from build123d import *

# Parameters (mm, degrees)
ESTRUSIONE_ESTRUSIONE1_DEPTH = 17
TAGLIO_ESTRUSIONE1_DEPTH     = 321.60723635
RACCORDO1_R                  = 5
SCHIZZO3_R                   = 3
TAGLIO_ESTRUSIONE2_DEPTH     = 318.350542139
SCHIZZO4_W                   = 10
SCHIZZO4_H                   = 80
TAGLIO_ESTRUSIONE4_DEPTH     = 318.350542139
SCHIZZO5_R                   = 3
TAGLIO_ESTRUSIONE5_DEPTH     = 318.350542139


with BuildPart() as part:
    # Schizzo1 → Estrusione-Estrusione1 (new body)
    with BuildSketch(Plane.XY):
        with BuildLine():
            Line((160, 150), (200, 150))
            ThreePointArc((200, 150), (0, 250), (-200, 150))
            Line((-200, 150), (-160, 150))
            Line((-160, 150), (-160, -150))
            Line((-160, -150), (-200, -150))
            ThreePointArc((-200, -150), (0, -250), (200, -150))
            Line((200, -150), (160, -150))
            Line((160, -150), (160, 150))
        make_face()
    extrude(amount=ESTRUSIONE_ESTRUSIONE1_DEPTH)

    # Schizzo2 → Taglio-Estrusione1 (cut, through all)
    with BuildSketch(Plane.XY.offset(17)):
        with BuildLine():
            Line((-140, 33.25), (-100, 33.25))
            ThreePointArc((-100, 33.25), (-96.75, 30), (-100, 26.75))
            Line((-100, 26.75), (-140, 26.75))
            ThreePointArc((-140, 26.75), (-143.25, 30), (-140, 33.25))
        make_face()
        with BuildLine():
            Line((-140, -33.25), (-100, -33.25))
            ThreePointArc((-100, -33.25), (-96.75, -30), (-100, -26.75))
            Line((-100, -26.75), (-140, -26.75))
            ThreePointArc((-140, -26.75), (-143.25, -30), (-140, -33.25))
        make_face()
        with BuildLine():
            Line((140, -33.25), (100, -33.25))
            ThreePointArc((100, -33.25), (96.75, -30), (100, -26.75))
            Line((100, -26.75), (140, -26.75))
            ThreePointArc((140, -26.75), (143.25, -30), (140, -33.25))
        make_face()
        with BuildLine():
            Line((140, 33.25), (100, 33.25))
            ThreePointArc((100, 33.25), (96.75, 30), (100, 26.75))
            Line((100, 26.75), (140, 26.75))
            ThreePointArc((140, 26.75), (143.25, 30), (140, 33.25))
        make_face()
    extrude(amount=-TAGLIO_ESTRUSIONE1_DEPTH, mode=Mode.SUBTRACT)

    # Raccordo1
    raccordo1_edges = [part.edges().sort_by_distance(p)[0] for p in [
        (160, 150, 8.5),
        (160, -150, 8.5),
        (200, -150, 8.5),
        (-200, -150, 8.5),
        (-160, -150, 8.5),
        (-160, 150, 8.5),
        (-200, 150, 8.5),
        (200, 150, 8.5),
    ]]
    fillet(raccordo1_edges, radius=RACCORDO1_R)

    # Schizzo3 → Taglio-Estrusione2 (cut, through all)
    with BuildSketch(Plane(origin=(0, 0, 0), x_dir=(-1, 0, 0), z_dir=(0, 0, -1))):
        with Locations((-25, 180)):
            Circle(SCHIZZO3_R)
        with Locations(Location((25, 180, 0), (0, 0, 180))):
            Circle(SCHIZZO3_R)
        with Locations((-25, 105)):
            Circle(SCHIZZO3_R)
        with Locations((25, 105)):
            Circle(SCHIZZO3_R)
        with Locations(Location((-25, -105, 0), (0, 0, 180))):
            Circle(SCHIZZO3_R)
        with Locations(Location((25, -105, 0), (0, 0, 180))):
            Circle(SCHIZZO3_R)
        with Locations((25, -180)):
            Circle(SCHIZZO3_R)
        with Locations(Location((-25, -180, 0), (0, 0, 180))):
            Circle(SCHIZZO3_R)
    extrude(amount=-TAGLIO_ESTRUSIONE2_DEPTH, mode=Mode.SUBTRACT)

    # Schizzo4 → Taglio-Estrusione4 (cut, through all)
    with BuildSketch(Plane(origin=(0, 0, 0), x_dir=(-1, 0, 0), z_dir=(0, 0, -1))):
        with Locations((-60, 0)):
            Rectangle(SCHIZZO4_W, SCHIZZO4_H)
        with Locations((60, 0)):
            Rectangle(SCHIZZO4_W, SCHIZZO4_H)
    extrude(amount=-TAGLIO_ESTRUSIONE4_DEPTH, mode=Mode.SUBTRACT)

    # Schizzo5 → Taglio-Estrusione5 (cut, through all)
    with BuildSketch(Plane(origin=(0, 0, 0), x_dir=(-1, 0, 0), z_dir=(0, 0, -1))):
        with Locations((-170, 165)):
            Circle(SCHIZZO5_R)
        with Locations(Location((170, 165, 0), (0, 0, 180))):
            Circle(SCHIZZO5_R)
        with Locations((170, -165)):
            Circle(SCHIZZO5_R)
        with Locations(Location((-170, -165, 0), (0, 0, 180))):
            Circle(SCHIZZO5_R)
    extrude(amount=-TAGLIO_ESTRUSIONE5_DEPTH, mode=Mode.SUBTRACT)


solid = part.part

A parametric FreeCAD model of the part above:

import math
import FreeCAD as App
import Part
import Sketcher


def edges_at(feature, points):
    """Names of the edges that pass closest to the given points."""
    edges = feature.Shape.Edges
    near = lambda p: min(range(len(edges)), key=lambda i: edges[i].distToShape(Part.Vertex(*p))[0])
    return sorted({f"Edge{near(p) + 1}" for p in points})


def add_polygon(sketch, points):
    """Adds a closed chain of lines whose ends are joined by coincident constraints."""
    first, n = sketch.GeometryCount, len(points)
    for a, b in zip(points, points[1:] + points[:1]):
        sketch.addGeometry(Part.LineSegment(App.Vector(*a, 0), App.Vector(*b, 0)), False)
    for i in range(n):
        sketch.addConstraint(Sketcher.Constraint("Coincident", first + i, 2, first + (i + 1) % n, 1))

doc = App.newDocument("Part")
body = doc.addObject("PartDesign::Body", "Body")

sketch1 = body.newObject("Sketcher::SketchObject", "Sketch")
sketch1.AttachmentSupport = (doc.getObject("XY_Plane"), [""])
sketch1.MapMode = "FlatFace"
sketch1.addGeometry([
    Part.LineSegment(App.Vector(160, 150, 0), App.Vector(200, 150, 0)),
    Part.ArcOfCircle(Part.Circle(App.Vector(0, 0, 0), App.Vector(0, 0, 1), 250), math.radians(37), math.radians(143)),
    Part.LineSegment(App.Vector(-200, 150, 0), App.Vector(-160, 150, 0)),
    Part.LineSegment(App.Vector(-160, 150, 0), App.Vector(-160, -150, 0)),
    Part.LineSegment(App.Vector(-160, -150, 0), App.Vector(-200, -150, 0)),
    Part.ArcOfCircle(Part.Circle(App.Vector(0, 0, 0), App.Vector(0, 0, 1), 250), math.radians(-143), math.radians(-37)),
    Part.LineSegment(App.Vector(200, -150, 0), App.Vector(160, -150, 0)),
    Part.LineSegment(App.Vector(160, -150, 0), App.Vector(160, 150, 0)),
], False)
sketch1.addConstraint([
    Sketcher.Constraint("Coincident", 0, 2, 1, 1),
    Sketcher.Constraint("Coincident", 1, 2, 2, 1),
    Sketcher.Constraint("Coincident", 2, 2, 3, 1),
    Sketcher.Constraint("Coincident", 3, 2, 4, 1),
    Sketcher.Constraint("Coincident", 4, 2, 5, 1),
    Sketcher.Constraint("Coincident", 5, 2, 6, 1),
    Sketcher.Constraint("Coincident", 6, 2, 7, 1),
    Sketcher.Constraint("Coincident", 7, 2, 0, 1),
    Sketcher.Constraint("Horizontal", 0),
    Sketcher.Constraint("Horizontal", 2),
    Sketcher.Constraint("Vertical", 3),
    Sketcher.Constraint("Horizontal", 4),
    Sketcher.Constraint("Horizontal", 6),
    Sketcher.Constraint("Vertical", 7),
    Sketcher.Constraint("Coincident", 1, 3, -1, 1),
    Sketcher.Constraint("Coincident", 5, 3, -1, 1),
    Sketcher.Constraint("Equal", 1, 5),
    Sketcher.Constraint("Symmetric", 2, 2, 6, 2, -1, 1),
    Sketcher.Constraint("Horizontal", 0, 2, 1, 2),
    Sketcher.Constraint("Horizontal", 4, 2, 5, 2),
    Sketcher.Constraint("Radius", 1, 250.0),
    Sketcher.Constraint("DistanceX", 0, 1, 0, 2, 40.0),
    Sketcher.Constraint("DistanceY", 3, 2, 3, 1, 300.0),
])
pad1 = body.newObject("PartDesign::Pad", "Pad")
pad1.Profile = sketch1
pad1.Length = 17

sketch2 = body.newObject("Sketcher::SketchObject", "Sketch001")
sketch2.AttachmentSupport = (doc.getObject("XY_Plane"), [""])
sketch2.MapMode = "FlatFace"
sketch2.AttachmentOffset = App.Placement(App.Vector(0, 0, 17), App.Rotation())
sketch2.addGeometry([
    Part.LineSegment(App.Vector(-100, 33.2, 0), App.Vector(-140, 33.2, 0)),
    Part.ArcOfCircle(Part.Circle(App.Vector(-140, 30, 0), App.Vector(0, 0, 1), 3.2), math.radians(90), math.radians(270)),
    Part.LineSegment(App.Vector(-140, 26.8, 0), App.Vector(-100, 26.8, 0)),
    Part.ArcOfCircle(Part.Circle(App.Vector(-100, 30, 0), App.Vector(0, 0, 1), 3.2), math.radians(-90), math.radians(90)),
    Part.LineSegment(App.Vector(-140, -33.2, 0), App.Vector(-100, -33.2, 0)),
    Part.ArcOfCircle(Part.Circle(App.Vector(-100, -30, 0), App.Vector(0, 0, 1), 3.2), math.radians(-90), math.radians(90)),
    Part.LineSegment(App.Vector(-100, -26.8, 0), App.Vector(-140, -26.8, 0)),
    Part.ArcOfCircle(Part.Circle(App.Vector(-140, -30, 0), App.Vector(0, 0, 1), 3.2), math.radians(90), math.radians(270)),
    Part.LineSegment(App.Vector(100, -33.2, 0), App.Vector(140, -33.2, 0)),
    Part.ArcOfCircle(Part.Circle(App.Vector(140, -30, 0), App.Vector(0, 0, 1), 3.2), math.radians(-90), math.radians(90)),
    Part.LineSegment(App.Vector(140, -26.8, 0), App.Vector(100, -26.8, 0)),
    Part.ArcOfCircle(Part.Circle(App.Vector(100, -30, 0), App.Vector(0, 0, 1), 3.2), math.radians(90), math.radians(270)),
    Part.LineSegment(App.Vector(140, 33.2, 0), App.Vector(100, 33.2, 0)),
    Part.ArcOfCircle(Part.Circle(App.Vector(100, 30, 0), App.Vector(0, 0, 1), 3.2), math.radians(90), math.radians(270)),
    Part.LineSegment(App.Vector(100, 26.8, 0), App.Vector(140, 26.8, 0)),
    Part.ArcOfCircle(Part.Circle(App.Vector(140, 30, 0), App.Vector(0, 0, 1), 3.2), math.radians(-90), math.radians(90)),
], False)
sketch2.addConstraint([
    Sketcher.Constraint("Tangent", 0, 2, 1, 1),
    Sketcher.Constraint("Tangent", 1, 2, 2, 1),
    Sketcher.Constraint("Tangent", 2, 2, 3, 1),
    Sketcher.Constraint("Tangent", 3, 2, 0, 1),
    Sketcher.Constraint("Tangent", 4, 2, 5, 1),
    Sketcher.Constraint("Tangent", 5, 2, 6, 1),
    Sketcher.Constraint("Tangent", 6, 2, 7, 1),
    Sketcher.Constraint("Tangent", 7, 2, 4, 1),
    Sketcher.Constraint("Tangent", 8, 2, 9, 1),
    Sketcher.Constraint("Tangent", 9, 2, 10, 1),
    Sketcher.Constraint("Tangent", 10, 2, 11, 1),
    Sketcher.Constraint("Tangent", 11, 2, 8, 1),
    Sketcher.Constraint("Tangent", 12, 2, 13, 1),
    Sketcher.Constraint("Tangent", 13, 2, 14, 1),
    Sketcher.Constraint("Tangent", 14, 2, 15, 1),
    Sketcher.Constraint("Tangent", 15, 2, 12, 1),
    Sketcher.Constraint("Horizontal", 0),
    Sketcher.Constraint("Horizontal", 2),
    Sketcher.Constraint("Horizontal", 4),
    Sketcher.Constraint("Horizontal", 6),
    Sketcher.Constraint("Horizontal", 8),
    Sketcher.Constraint("Horizontal", 10),
    Sketcher.Constraint("Horizontal", 12),
    Sketcher.Constraint("Horizontal", 14),
    Sketcher.Constraint("Equal", 3, 5),
    Sketcher.Constraint("Equal", 7, 9),
    Sketcher.Constraint("Equal", 11, 13),
    Sketcher.Constraint("Symmetric", 1, 3, 9, 3, -1, 1),
    Sketcher.Constraint("Symmetric", 5, 3, 13, 3, -1, 1),
    Sketcher.Constraint("Symmetric", 7, 3, 9, 3, -2),
    Sketcher.Constraint("Vertical", 3, 3, 5, 3),
    Sketcher.Constraint("Vertical", 11, 3, 13, 3),
    Sketcher.Constraint("Vertical", 9, 3, 15, 3),
    Sketcher.Constraint("DistanceX", 0, 2, 0, 1, 40.0),
    Sketcher.Constraint("Radius", 1, 3.25),
    Sketcher.Constraint("DistanceX", 1, 3, -1, 1, 140.0),
    Sketcher.Constraint("DistanceY", -1, 1, 1, 3, 30.0),
])
pocket1 = body.newObject("PartDesign::Pocket", "Pocket")
pocket1.Profile = sketch2
pocket1.Type = "ThroughAll"
doc.recompute()

fillet = body.newObject("PartDesign::Fillet", "Fillet")
fillet.Base = (pocket1, edges_at(pocket1, [
    (160, 150, 8.5),
    (160, -150, 8.5),
    (200, -150, 8.5),
    (-200, -150, 8.5),
    (-160, -150, 8.5),
    (-160, 150, 8.5),
    (-200, 150, 8.5),
    (200, 150, 8.5),
]))
fillet.Radius = 5

sketch3 = body.newObject("Sketcher::SketchObject", "Sketch002")
sketch3.AttachmentSupport = (doc.getObject("XY_Plane"), [""])
sketch3.MapMode = "FlatFace"
sketch3.addGeometry([
    Part.Circle(App.Vector(25, 180, 0), App.Vector(0, 0, 1), 3),
    Part.Circle(App.Vector(-25, 180, 0), App.Vector(0, 0, 1), 3),
    Part.Circle(App.Vector(25, 105, 0), App.Vector(0, 0, 1), 3),
    Part.Circle(App.Vector(-25, 105, 0), App.Vector(0, 0, 1), 3),
    Part.Circle(App.Vector(25, -105, 0), App.Vector(0, 0, 1), 3),
    Part.Circle(App.Vector(-25, -105, 0), App.Vector(0, 0, 1), 3),
    Part.Circle(App.Vector(-25, -180, 0), App.Vector(0, 0, 1), 3),
    Part.Circle(App.Vector(25, -180, 0), App.Vector(0, 0, 1), 3),
], False)
sketch3.addConstraint([
    Sketcher.Constraint("Equal", 0, 1),
    Sketcher.Constraint("Equal", 1, 2),
    Sketcher.Constraint("Equal", 2, 3),
    Sketcher.Constraint("Equal", 3, 4),
    Sketcher.Constraint("Equal", 4, 5),
    Sketcher.Constraint("Equal", 5, 6),
    Sketcher.Constraint("Equal", 6, 7),
    Sketcher.Constraint("Symmetric", 3, 3, 4, 3, -1, 1),
    Sketcher.Constraint("Symmetric", 2, 3, 5, 3, -1, 1),
    Sketcher.Constraint("Symmetric", 0, 3, 6, 3, -1, 1),
    Sketcher.Constraint("Symmetric", 1, 3, 7, 3, -1, 1),
    Sketcher.Constraint("Symmetric", 0, 3, 1, 3, -2),
    Sketcher.Constraint("Symmetric", 2, 3, 3, 3, -2),
    Sketcher.Constraint("Vertical", 0, 3, 2, 3),
    Sketcher.Constraint("Diameter", 0, 6.0),
    Sketcher.Constraint("DistanceX", -1, 1, 0, 3, 25.0),
    Sketcher.Constraint("DistanceY", -1, 1, 0, 3, 180.0),
    Sketcher.Constraint("DistanceY", -1, 1, 2, 3, 105.0),
])
pocket2 = body.newObject("PartDesign::Pocket", "Pocket001")
pocket2.Profile = sketch3
pocket2.Type = "ThroughAll"
pocket2.Reversed = True

sketch4 = body.newObject("Sketcher::SketchObject", "Sketch003")
sketch4.AttachmentSupport = (doc.getObject("XY_Plane"), [""])
sketch4.MapMode = "FlatFace"
add_polygon(sketch4, [(65, 40), (65, -40), (55, -40), (55, 40)])
add_polygon(sketch4, [(-55, 40), (-55, -40), (-65, -40), (-65, 40)])
sketch4.addConstraint([
    Sketcher.Constraint("Vertical", 0),
    Sketcher.Constraint("Horizontal", 1),
    Sketcher.Constraint("Vertical", 2),
    Sketcher.Constraint("Horizontal", 3),
    Sketcher.Constraint("Vertical", 4),
    Sketcher.Constraint("Horizontal", 5),
    Sketcher.Constraint("Vertical", 6),
    Sketcher.Constraint("Horizontal", 7),
    Sketcher.Constraint("Symmetric", 2, 2, 4, 2, -1, 1),
    Sketcher.Constraint("Symmetric", 0, 2, 6, 2, -1, 1),
    Sketcher.Constraint("Horizontal", 1, 2, 4, 2),
    Sketcher.Constraint("DistanceX", 1, 2, 1, 1, 10.0),
    Sketcher.Constraint("DistanceY", 0, 2, 0, 1, 80.0),
    Sketcher.Constraint("DistanceX", -1, 1, 0, 2, 65.0),
])
pocket3 = body.newObject("PartDesign::Pocket", "Pocket002")
pocket3.Profile = sketch4
pocket3.Type = "ThroughAll"
pocket3.Reversed = True

sketch5 = body.newObject("Sketcher::SketchObject", "Sketch004")
sketch5.AttachmentSupport = (doc.getObject("XY_Plane"), [""])
sketch5.MapMode = "FlatFace"
sketch5.addGeometry([
    Part.Circle(App.Vector(170, 165, 0), App.Vector(0, 0, 1), 3),
    Part.Circle(App.Vector(-170, 165, 0), App.Vector(0, 0, 1), 3),
    Part.Circle(App.Vector(-170, -165, 0), App.Vector(0, 0, 1), 3),
    Part.Circle(App.Vector(170, -165, 0), App.Vector(0, 0, 1), 3),
], False)
sketch5.addConstraint([
    Sketcher.Constraint("Equal", 0, 1),
    Sketcher.Constraint("Equal", 1, 2),
    Sketcher.Constraint("Equal", 2, 3),
    Sketcher.Constraint("Symmetric", 0, 3, 2, 3, -1, 1),
    Sketcher.Constraint("Symmetric", 1, 3, 3, 3, -1, 1),
    Sketcher.Constraint("Symmetric", 0, 3, 1, 3, -2),
    Sketcher.Constraint("Diameter", 0, 6.0),
    Sketcher.Constraint("DistanceX", -1, 1, 0, 3, 170.0),
    Sketcher.Constraint("DistanceY", -1, 1, 0, 3, 165.0),
])
pocket4 = body.newObject("PartDesign::Pocket", "Pocket003")
pocket4.Profile = sketch5
pocket4.Type = "ThroughAll"
pocket4.Reversed = True

doc.recompute()
